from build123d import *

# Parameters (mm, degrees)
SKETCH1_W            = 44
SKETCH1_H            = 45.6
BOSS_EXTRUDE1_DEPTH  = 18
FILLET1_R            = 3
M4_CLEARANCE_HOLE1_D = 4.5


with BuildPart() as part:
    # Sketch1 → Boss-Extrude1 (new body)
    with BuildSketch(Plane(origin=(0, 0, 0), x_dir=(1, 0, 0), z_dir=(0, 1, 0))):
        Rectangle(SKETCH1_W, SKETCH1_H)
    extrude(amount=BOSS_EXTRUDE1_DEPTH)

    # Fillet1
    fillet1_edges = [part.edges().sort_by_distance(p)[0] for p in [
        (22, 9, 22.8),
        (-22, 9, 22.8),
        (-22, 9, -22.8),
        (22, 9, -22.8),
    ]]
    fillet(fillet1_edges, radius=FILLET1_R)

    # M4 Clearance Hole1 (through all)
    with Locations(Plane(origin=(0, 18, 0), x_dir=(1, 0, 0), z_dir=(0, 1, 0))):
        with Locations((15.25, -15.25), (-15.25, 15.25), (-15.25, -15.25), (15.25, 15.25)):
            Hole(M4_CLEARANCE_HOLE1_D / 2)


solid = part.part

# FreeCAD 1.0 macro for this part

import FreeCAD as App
import Part
import Sketcher
from FreeCAD import Vector


def edges_at(feature, points):
    """Names of the edges that pass closest to the given points."""
    edges = feature.Shape.Edges
    near = lambda p: min(range(len(edges)), key=lambda i: edges[i].distToShape(Part.Vertex(*p))[0])
    return sorted({f"Edge{near(p) + 1}" for p in points})

doc = App.newDocument("Part")
body = doc.addObject("PartDesign::Body", "Body")

sketch1 = body.newObject("Sketcher::SketchObject", "Sketch")
sketch1.AttachmentSupport = (doc.getObject("XZ_Plane"), [""])
sketch1.MapMode = "FlatFace"
sketch1.addGeometry(Part.LineSegment(Vector(-22, -23, 0), Vector(-22, 23, 0)), False)
sketch1.addGeometry(Part.LineSegment(Vector(-22, 23, 0), Vector(22, 23, 0)), False)
sketch1.addGeometry(Part.LineSegment(Vector(22, 23, 0), Vector(22, -23, 0)), False)
sketch1.addGeometry(Part.LineSegment(Vector(22, -23, 0), Vector(-22, -23, 0)), False)
sketch1.addConstraint(Sketcher.Constraint("Coincident", 0, 2, 1, 1))
sketch1.addConstraint(Sketcher.Constraint("Coincident", 1, 2, 2, 1))
sketch1.addConstraint(Sketcher.Constraint("Coincident", 2, 2, 3, 1))
sketch1.addConstraint(Sketcher.Constraint("Coincident", 3, 2, 0, 1))
sketch1.addConstraint(Sketcher.Constraint("Vertical", 0))
sketch1.addConstraint(Sketcher.Constraint("Horizontal", 1))
sketch1.addConstraint(Sketcher.Constraint("Vertical", 2))
sketch1.addConstraint(Sketcher.Constraint("Horizontal", 3))
sketch1.addConstraint(Sketcher.Constraint("Symmetric", 0, 2, 2, 2, -1, 1))
sketch1.addConstraint(Sketcher.Constraint("DistanceX", 1, 1, 1, 2, 44.0))
sketch1.addConstraint(Sketcher.Constraint("DistanceY", 0, 1, 0, 2, 45.6))
pad1 = body.newObject("PartDesign::Pad", "Pad")
pad1.Profile = sketch1
pad1.Length = 18
pad1.Reversed = True
doc.recompute()

fillet = body.newObject("PartDesign::Fillet", "Fillet")
fillet.Base = (pad1, edges_at(pad1, [
    (22, 9, 22.8),
    (-22, 9, 22.8),
    (-22, 9, -22.8),
    (22, 9, -22.8),
]))
fillet.Radius = 3

sketch2 = body.newObject("Sketcher::SketchObject", "Sketch001")
sketch2.AttachmentSupport = (doc.getObject("XZ_Plane"), [""])
sketch2.MapMode = "FlatFace"
sketch2.AttachmentOffset = App.Placement(Vector(0, 0, -18), App.Rotation())
sketch2.addGeometry(Part.Circle(Vector(15.2, 15.2, 0), Vector(0, 0, 1), 2.2), False)
sketch2.addGeometry(Part.Circle(Vector(-15.2, -15.2, 0), Vector(0, 0, 1), 2.2), False)
sketch2.addGeometry(Part.Circle(Vector(-15.2, 15.2, 0), Vector(0, 0, 1), 2.2), False)
sketch2.addGeometry(Part.Circle(Vector(15.2, -15.2, 0), Vector(0, 0, 1), 2.2), False)
sketch2.addConstraint(Sketcher.Constraint("Equal", 0, 1))
sketch2.addConstraint(Sketcher.Constraint("Equal", 1, 2))
sketch2.addConstraint(Sketcher.Constraint("Equal", 2, 3))
sketch2.addConstraint(Sketcher.Constraint("Symmetric", 0, 3, 1, 3, -1, 1))
sketch2.addConstraint(Sketcher.Constraint("Symmetric", 2, 3, 3, 3, -1, 1))
sketch2.addConstraint(Sketcher.Constraint("Symmetric", 0, 3, 2, 3, -2))
sketch2.addConstraint(Sketcher.Constraint("Diameter", 0, 4.5))
sketch2.addConstraint(Sketcher.Constraint("DistanceX", 1, 3, 0, 3, 30.5))
sketch2.addConstraint(Sketcher.Constraint("DistanceY", 1, 3, 0, 3, 30.5))
doc.recompute()
hole = body.newObject("PartDesign::Hole", "Hole")
hole.Profile = sketch2
hole.ThreadType = "None"
hole.Diameter = 4.5
hole.DepthType = "ThroughAll"
hole.Reversed = True

doc.recompute()
